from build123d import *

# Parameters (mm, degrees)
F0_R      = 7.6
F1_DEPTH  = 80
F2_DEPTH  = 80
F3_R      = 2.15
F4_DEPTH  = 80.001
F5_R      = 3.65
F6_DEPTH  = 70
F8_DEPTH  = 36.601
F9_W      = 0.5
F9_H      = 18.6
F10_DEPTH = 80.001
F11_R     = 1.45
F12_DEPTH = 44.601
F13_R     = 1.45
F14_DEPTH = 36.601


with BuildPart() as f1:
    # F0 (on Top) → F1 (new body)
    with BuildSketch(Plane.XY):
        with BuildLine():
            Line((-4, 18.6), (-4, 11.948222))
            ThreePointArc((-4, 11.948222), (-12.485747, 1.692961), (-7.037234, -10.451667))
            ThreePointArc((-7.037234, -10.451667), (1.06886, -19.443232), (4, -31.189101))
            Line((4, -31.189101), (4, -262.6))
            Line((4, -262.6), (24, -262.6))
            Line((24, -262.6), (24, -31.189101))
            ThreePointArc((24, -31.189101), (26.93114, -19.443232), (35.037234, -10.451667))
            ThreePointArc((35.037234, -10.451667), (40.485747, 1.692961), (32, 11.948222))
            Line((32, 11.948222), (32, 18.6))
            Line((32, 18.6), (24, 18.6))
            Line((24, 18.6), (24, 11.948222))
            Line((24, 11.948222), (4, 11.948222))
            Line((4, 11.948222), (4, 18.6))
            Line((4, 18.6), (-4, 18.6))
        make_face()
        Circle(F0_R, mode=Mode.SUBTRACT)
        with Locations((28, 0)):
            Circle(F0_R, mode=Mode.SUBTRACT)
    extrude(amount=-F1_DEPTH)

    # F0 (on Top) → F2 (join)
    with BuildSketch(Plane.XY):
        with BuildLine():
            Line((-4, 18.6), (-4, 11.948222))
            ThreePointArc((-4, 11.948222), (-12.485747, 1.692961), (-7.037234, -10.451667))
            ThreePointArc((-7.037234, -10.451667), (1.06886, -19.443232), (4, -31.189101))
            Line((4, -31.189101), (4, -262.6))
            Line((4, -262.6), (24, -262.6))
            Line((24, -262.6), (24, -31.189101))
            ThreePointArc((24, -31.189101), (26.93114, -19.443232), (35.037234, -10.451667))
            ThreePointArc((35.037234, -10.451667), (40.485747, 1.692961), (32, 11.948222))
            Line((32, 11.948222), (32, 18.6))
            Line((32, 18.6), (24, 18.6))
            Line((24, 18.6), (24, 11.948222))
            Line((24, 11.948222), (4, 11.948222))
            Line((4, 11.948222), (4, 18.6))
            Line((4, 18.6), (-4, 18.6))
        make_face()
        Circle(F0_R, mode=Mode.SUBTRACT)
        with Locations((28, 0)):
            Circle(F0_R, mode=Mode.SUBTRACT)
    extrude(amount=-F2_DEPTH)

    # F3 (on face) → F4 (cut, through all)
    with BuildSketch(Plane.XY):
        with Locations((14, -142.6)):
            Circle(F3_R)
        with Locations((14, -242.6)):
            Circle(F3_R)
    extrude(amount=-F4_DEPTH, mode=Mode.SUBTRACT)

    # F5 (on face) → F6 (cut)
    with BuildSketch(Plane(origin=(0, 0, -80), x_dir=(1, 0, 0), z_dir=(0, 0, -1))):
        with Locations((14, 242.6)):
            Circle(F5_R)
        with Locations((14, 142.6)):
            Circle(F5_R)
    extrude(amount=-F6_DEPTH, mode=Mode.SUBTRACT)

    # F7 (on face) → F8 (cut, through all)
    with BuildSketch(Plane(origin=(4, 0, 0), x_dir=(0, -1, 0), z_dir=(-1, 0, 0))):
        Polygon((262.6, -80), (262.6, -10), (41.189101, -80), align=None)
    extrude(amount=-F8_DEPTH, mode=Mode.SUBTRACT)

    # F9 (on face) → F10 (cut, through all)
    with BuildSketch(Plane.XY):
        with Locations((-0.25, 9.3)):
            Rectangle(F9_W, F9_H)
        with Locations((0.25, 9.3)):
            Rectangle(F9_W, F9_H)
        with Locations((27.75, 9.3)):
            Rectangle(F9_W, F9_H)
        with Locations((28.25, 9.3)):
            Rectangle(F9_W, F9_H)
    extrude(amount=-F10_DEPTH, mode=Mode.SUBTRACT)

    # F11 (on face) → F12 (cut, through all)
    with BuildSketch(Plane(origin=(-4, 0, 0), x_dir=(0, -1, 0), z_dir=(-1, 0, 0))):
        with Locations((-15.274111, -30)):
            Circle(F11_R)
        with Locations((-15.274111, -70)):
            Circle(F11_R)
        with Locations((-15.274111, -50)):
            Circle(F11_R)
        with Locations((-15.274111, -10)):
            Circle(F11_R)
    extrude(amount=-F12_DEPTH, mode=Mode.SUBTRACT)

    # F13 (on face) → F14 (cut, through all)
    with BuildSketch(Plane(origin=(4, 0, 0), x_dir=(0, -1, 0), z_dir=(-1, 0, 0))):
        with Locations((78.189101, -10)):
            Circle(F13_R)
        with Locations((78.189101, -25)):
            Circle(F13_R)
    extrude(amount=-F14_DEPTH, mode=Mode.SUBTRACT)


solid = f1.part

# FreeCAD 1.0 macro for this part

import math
import FreeCAD as App
import Part
import Sketcher
from FreeCAD import Vector


def add_polygon(sketch, points):
    """Adds a closed chain of lines whose ends are joined by coincident constraints."""
    first, n = sketch.GeometryCount, len(points)
    for a, b in zip(points, points[1:] + points[:1]):
        sketch.addGeometry(Part.LineSegment(App.Vector(*a, 0), App.Vector(*b, 0)), False)
    for i in range(n):
        sketch.addConstraint(Sketcher.Constraint("Coincident", first + i, 2, first + (i + 1) % n, 1))

doc = App.newDocument("Part")
body = doc.addObject("PartDesign::Body", "Body")

sketch1 = body.newObject("Sketcher::SketchObject", "Sketch")
sketch1.AttachmentSupport = (doc.getObject("XY_Plane"), [""])
sketch1.MapMode = "FlatFace"
sketch1.addGeometry([
    Part.LineSegment(Vector(-4, 19, 0), Vector(-4, 12, 0)),
    Part.ArcOfCircle(Part.Circle(Vector(0, 0, 0), Vector(0, 0, 1), 13), math.radians(109), math.radians(236)),
    Part.ArcOfCircle(Part.Circle(Vector(-21, -31, 0), Vector(0, 0, 1), 25), math.radians(0), math.radians(56)),
    Part.LineSegment(Vector(4, -31, 0), Vector(4, -263, 0)),
    Part.LineSegment(Vector(4, -263, 0), Vector(24, -263, 0)),
    Part.LineSegment(Vector(24, -263, 0), Vector(24, -31, 0)),
    Part.ArcOfCircle(Part.Circle(Vector(49, -31, 0), Vector(0, 0, 1), 25), math.radians(124), math.radians(180)),
    Part.ArcOfCircle(Part.Circle(Vector(28, 0, 0), Vector(0, 0, 1), 13), math.radians(-56), math.radians(71)),
    Part.LineSegment(Vector(32, 12, 0), Vector(32, 19, 0)),
    Part.LineSegment(Vector(32, 19, 0), Vector(24, 19, 0)),
    Part.LineSegment(Vector(24, 19, 0), Vector(24, 12, 0)),
    Part.LineSegment(Vector(24, 12, 0), Vector(4, 12, 0)),
    Part.LineSegment(Vector(4, 12, 0), Vector(4, 19, 0)),
    Part.LineSegment(Vector(4, 19, 0), Vector(-4, 19, 0)),
    Part.Circle(Vector(0, 0, 0), Vector(0, 0, 1), 8),
    Part.Circle(Vector(28, 0, 0), Vector(0, 0, 1), 8),
], False)
sketch1.addConstraint([
    Sketcher.Constraint("Coincident", 0, 2, 1, 1),
    Sketcher.Constraint("Tangent", 1, 2, 2, 2),
    Sketcher.Constraint("Tangent", 2, 1, 3, 1),
    Sketcher.Constraint("Coincident", 3, 2, 4, 1),
    Sketcher.Constraint("Coincident", 4, 2, 5, 1),
    Sketcher.Constraint("Tangent", 5, 2, 6, 2),
    Sketcher.Constraint("Tangent", 6, 1, 7, 1),
    Sketcher.Constraint("Coincident", 7, 2, 8, 1),
    Sketcher.Constraint("Coincident", 8, 2, 9, 1),
    Sketcher.Constraint("Coincident", 9, 2, 10, 1),
    Sketcher.Constraint("Coincident", 10, 2, 11, 1),
    Sketcher.Constraint("Coincident", 11, 2, 12, 1),
    Sketcher.Constraint("Coincident", 12, 2, 13, 1),
    Sketcher.Constraint("Coincident", 13, 2, 0, 1),
    Sketcher.Constraint("Vertical", 0),
    Sketcher.Constraint("Vertical", 3),
    Sketcher.Constraint("Horizontal", 4),
    Sketcher.Constraint("Vertical", 5),
    Sketcher.Constraint("Vertical", 8),
    Sketcher.Constraint("Horizontal", 9),
    Sketcher.Constraint("Vertical", 10),
    Sketcher.Constraint("Horizontal", 11),
    Sketcher.Constraint("Vertical", 12),
    Sketcher.Constraint("Horizontal", 13),
    Sketcher.Constraint("Coincident", 1, 3, -1, 1),
    Sketcher.Constraint("Coincident", 14, 3, -1, 1),
    Sketcher.Constraint("Coincident", 15, 3, 7, 3),
    Sketcher.Constraint("Equal", 2, 6),
    Sketcher.Constraint("Equal", 1, 7),
    Sketcher.Constraint("Equal", 14, 15),
    Sketcher.Constraint("Symmetric", 0, 2, 11, 2, -2),
    Sketcher.Constraint("PointOnObject", 7, 3, -1),
    Sketcher.Constraint("Horizontal", 2, 3, 6, 3),
    Sketcher.Constraint("Horizontal", 0, 2, 7, 2),
    Sketcher.Constraint("Horizontal", 9, 2, 12, 2),
    Sketcher.Constraint("Vertical", 5, 2, 9, 2),
    Sketcher.Constraint("Vertical", 3, 2, 11, 2),
    Sketcher.Constraint("Diameter", 14, 15.2),
    Sketcher.Constraint("Radius", 1, 12.600001),
    Sketcher.Constraint("DistanceX", 4, 1, 4, 2, 20.0),
    Sketcher.Constraint("DistanceX", 9, 2, 9, 1, 8.0),
    Sketcher.Constraint("DistanceX", 2, 3, 1, 3, 20.999998),
    Sketcher.Constraint("DistanceY", 3, 2, -1, 1, 262.6),
    Sketcher.Constraint("DistanceY", -1, 1, 8, 2, 18.6),
])
pad1 = body.newObject("PartDesign::Pad", "Pad")
pad1.Profile = sketch1
pad1.Length = 80
pad1.Reversed = True

sketch2 = body.newObject("Sketcher::SketchObject", "Sketch001")
sketch2.AttachmentSupport = (doc.getObject("XY_Plane"), [""])
sketch2.MapMode = "FlatFace"
sketch2.addGeometry([
    Part.LineSegment(Vector(-4, 19, 0), Vector(-4, 12, 0)),
    Part.ArcOfCircle(Part.Circle(Vector(0, 0, 0), Vector(0, 0, 1), 13), math.radians(109), math.radians(236)),
    Part.ArcOfCircle(Part.Circle(Vector(-21, -31, 0), Vector(0, 0, 1), 25), math.radians(0), math.radians(56)),
    Part.LineSegment(Vector(4, -31, 0), Vector(4, -263, 0)),
    Part.LineSegment(Vector(4, -263, 0), Vector(24, -263, 0)),
    Part.LineSegment(Vector(24, -263, 0), Vector(24, -31, 0)),
    Part.ArcOfCircle(Part.Circle(Vector(49, -31, 0), Vector(0, 0, 1), 25), math.radians(124), math.radians(180)),
    Part.ArcOfCircle(Part.Circle(Vector(28, 0, 0), Vector(0, 0, 1), 13), math.radians(-56), math.radians(71)),
    Part.LineSegment(Vector(32, 12, 0), Vector(32, 19, 0)),
    Part.LineSegment(Vector(32, 19, 0), Vector(24, 19, 0)),
    Part.LineSegment(Vector(24, 19, 0), Vector(24, 12, 0)),
    Part.LineSegment(Vector(24, 12, 0), Vector(4, 12, 0)),
    Part.LineSegment(Vector(4, 12, 0), Vector(4, 19, 0)),
    Part.LineSegment(Vector(4, 19, 0), Vector(-4, 19, 0)),
    Part.Circle(Vector(0, 0, 0), Vector(0, 0, 1), 8),
    Part.Circle(Vector(28, 0, 0), Vector(0, 0, 1), 8),
], False)
sketch2.addConstraint([
    Sketcher.Constraint("Coincident", 0, 2, 1, 1),
    Sketcher.Constraint("Tangent", 1, 2, 2, 2),
    Sketcher.Constraint("Tangent", 2, 1, 3, 1),
    Sketcher.Constraint("Coincident", 3, 2, 4, 1),
    Sketcher.Constraint("Coincident", 4, 2, 5, 1),
    Sketcher.Constraint("Tangent", 5, 2, 6, 2),
    Sketcher.Constraint("Tangent", 6, 1, 7, 1),
    Sketcher.Constraint("Coincident", 7, 2, 8, 1),
    Sketcher.Constraint("Coincident", 8, 2, 9, 1),
    Sketcher.Constraint("Coincident", 9, 2, 10, 1),
    Sketcher.Constraint("Coincident", 10, 2, 11, 1),
    Sketcher.Constraint("Coincident", 11, 2, 12, 1),
    Sketcher.Constraint("Coincident", 12, 2, 13, 1),
    Sketcher.Constraint("Coincident", 13, 2, 0, 1),
    Sketcher.Constraint("Vertical", 0),
    Sketcher.Constraint("Vertical", 3),
    Sketcher.Constraint("Horizontal", 4),
    Sketcher.Constraint("Vertical", 5),
    Sketcher.Constraint("Vertical", 8),
    Sketcher.Constraint("Horizontal", 9),
    Sketcher.Constraint("Vertical", 10),
    Sketcher.Constraint("Horizontal", 11),
    Sketcher.Constraint("Vertical", 12),
    Sketcher.Constraint("Horizontal", 13),
    Sketcher.Constraint("Coincident", 1, 3, -1, 1),
    Sketcher.Constraint("Coincident", 14, 3, -1, 1),
    Sketcher.Constraint("Coincident", 15, 3, 7, 3),
    Sketcher.Constraint("Equal", 2, 6),
    Sketcher.Constraint("Equal", 1, 7),
    Sketcher.Constraint("Equal", 14, 15),
    Sketcher.Constraint("Symmetric", 0, 2, 11, 2, -2),
    Sketcher.Constraint("PointOnObject", 7, 3, -1),
    Sketcher.Constraint("Horizontal", 2, 3, 6, 3),
    Sketcher.Constraint("Horizontal", 0, 2, 7, 2),
    Sketcher.Constraint("Horizontal", 9, 2, 12, 2),
    Sketcher.Constraint("Vertical", 5, 2, 9, 2),
    Sketcher.Constraint("Vertical", 3, 2, 11, 2),
    Sketcher.Constraint("Diameter", 14, 15.2),
    Sketcher.Constraint("Radius", 1, 12.600001),
    Sketcher.Constraint("DistanceX", 4, 1, 4, 2, 20.0),
    Sketcher.Constraint("DistanceX", 9, 2, 9, 1, 8.0),
    Sketcher.Constraint("DistanceX", 2, 3, 1, 3, 20.999998),
    Sketcher.Constraint("DistanceY", 3, 2, -1, 1, 262.6),
    Sketcher.Constraint("DistanceY", -1, 1, 8, 2, 18.6),
])
pad2 = body.newObject("PartDesign::Pad", "Pad001")
pad2.Profile = sketch2
pad2.Length = 80
pad2.Reversed = True

sketch3 = body.newObject("Sketcher::SketchObject", "Sketch002")
sketch3.AttachmentSupport = (doc.getObject("XY_Plane"), [""])
sketch3.MapMode = "FlatFace"
sketch3.addGeometry([
    Part.Circle(Vector(14, -142.6, 0), Vector(0, 0, 1), 2.1),
    Part.Circle(Vector(14, -242.6, 0), Vector(0, 0, 1), 2.1),
], False)
sketch3.addConstraint([
    Sketcher.Constraint("Equal", 0, 1),
    Sketcher.Constraint("Vertical", 0, 3, 1, 3),
    Sketcher.Constraint("Diameter", 0, 4.3),
    Sketcher.Constraint("DistanceX", -1, 1, 0, 3, 14.0),
    Sketcher.Constraint("DistanceY", 1, 3, 0, 3, 100.0),
    Sketcher.Constraint("DistanceY", 0, 3, -1, 1, 142.6),
])
pocket1 = body.newObject("PartDesign::Pocket", "Pocket")
pocket1.Profile = sketch3
pocket1.Type = "ThroughAll"

sketch4 = body.newObject("Sketcher::SketchObject", "Sketch003")
sketch4.AttachmentSupport = (doc.getObject("XY_Plane"), [""])
sketch4.MapMode = "FlatFace"
sketch4.AttachmentOffset = App.Placement(Vector(0, 0, -80), App.Rotation())
sketch4.addGeometry([
    Part.Circle(Vector(14, -242.6, 0), Vector(0, 0, 1), 3.6),
    Part.Circle(Vector(14, -142.6, 0), Vector(0, 0, 1), 3.6),
], False)
sketch4.addConstraint([
    Sketcher.Constraint("Equal", 0, 1),
    Sketcher.Constraint("Vertical", 0, 3, 1, 3),
    Sketcher.Constraint("Diameter", 0, 7.3),
    Sketcher.Constraint("DistanceX", -1, 1, 0, 3, 14.0),
    Sketcher.Constraint("DistanceY", 0, 3, 1, 3, 100.0),
    Sketcher.Constraint("DistanceY", 0, 3, -1, 1, 242.6),
])
pocket2 = body.newObject("PartDesign::Pocket", "Pocket001")
pocket2.Profile = sketch4
pocket2.Length = 70
pocket2.Reversed = True

sketch5 = body.newObject("Sketcher::SketchObject", "Sketch004")
sketch5.AttachmentSupport = (doc.getObject("YZ_Plane"), [""])
sketch5.MapMode = "FlatFace"
sketch5.AttachmentOffset = App.Placement(Vector(0, 0, 4), App.Rotation())
add_polygon(sketch5, [(-263, -80), (-263, -10), (-41, -80)])
sketch5.addConstraint([
    Sketcher.Constraint("Vertical", 0),
    Sketcher.Constraint("Horizontal", 2),
    Sketcher.Constraint("DistanceY", 0, 1, 0, 2, 70.0),
    Sketcher.Constraint("DistanceY", 0, 2, -1, 1, 10.0),
    Sketcher.Constraint("DistanceX", 0, 2, -1, 1, 262.6),
    Sketcher.Constraint("DistanceX", 2, 2, 2, 1, 221.410899),
])
pocket3 = body.newObject("PartDesign::Pocket", "Pocket002")
pocket3.Profile = sketch5
pocket3.Type = "ThroughAll"
pocket3.Reversed = True

sketch6 = body.newObject("Sketcher::SketchObject", "Sketch005")
sketch6.AttachmentSupport = (doc.getObject("XY_Plane"), [""])
sketch6.MapMode = "FlatFace"
add_polygon(sketch6, [(-0.5, 18.6), (-0.5, 0), (0.5, 0), (0.5, 18.6)])
add_polygon(sketch6, [(27.5, 18.6), (27.5, 0), (28.5, 0), (28.5, 18.6)])
sketch6.addConstraint([
    Sketcher.Constraint("Vertical", 0),
    Sketcher.Constraint("Horizontal", 1),
    Sketcher.Constraint("Vertical", 2),
    Sketcher.Constraint("Horizontal", 3),
    Sketcher.Constraint("Vertical", 4),
    Sketcher.Constraint("Horizontal", 5),
    Sketcher.Constraint("Vertical", 6),
    Sketcher.Constraint("Horizontal", 7),
    Sketcher.Constraint("Symmetric", 0, 2, 1, 2, -1, 1),
    Sketcher.Constraint("PointOnObject", 4, 2, -1),
    Sketcher.Constraint("Horizontal", 3, 2, 6, 2),
    Sketcher.Constraint("Equal", 3, 5),
    Sketcher.Constraint("DistanceX", 1, 1, 1, 2, 1.0),
    Sketcher.Constraint("DistanceY", 0, 2, 0, 1, 18.6),
    Sketcher.Constraint("DistanceX", 1, 2, 4, 2, 27.0),
])
pocket4 = body.newObject("PartDesign::Pocket", "Pocket003")
pocket4.Profile = sketch6
pocket4.Type = "ThroughAll"

sketch7 = body.newObject("Sketcher::SketchObject", "Sketch006")
sketch7.AttachmentSupport = (doc.getObject("YZ_Plane"), [""])
sketch7.MapMode = "FlatFace"
sketch7.AttachmentOffset = App.Placement(Vector(0, 0, -4), App.Rotation())
sketch7.addGeometry([
    Part.Circle(Vector(15.3, -30, 0), Vector(0, 0, 1), 1.4),
    Part.Circle(Vector(15.3, -70, 0), Vector(0, 0, 1), 1.4),
    Part.Circle(Vector(15.3, -50, 0), Vector(0, 0, 1), 1.4),
    Part.Circle(Vector(15.3, -10, 0), Vector(0, 0, 1), 1.4),
], False)
sketch7.addConstraint([
    Sketcher.Constraint("Equal", 0, 1),
    Sketcher.Constraint("Equal", 1, 2),
    Sketcher.Constraint("Equal", 2, 3),
    Sketcher.Constraint("Vertical", 0, 3, 1, 3),
    Sketcher.Constraint("Vertical", 1, 3, 2, 3),
    Sketcher.Constraint("Vertical", 2, 3, 3, 3),
    Sketcher.Constraint("Diameter", 0, 2.9),
    Sketcher.Constraint("DistanceY", 0, 3, -1, 1, 30.0),
    Sketcher.Constraint("DistanceY", 1, 3, -1, 1, 70.0),
    Sketcher.Constraint("DistanceY", 2, 3, -1, 1, 50.0),
    Sketcher.Constraint("DistanceY", 3, 3, -1, 1, 10.0),
    Sketcher.Constraint("DistanceX", -1, 1, 0, 3, 15.274111),
])
pocket5 = body.newObject("PartDesign::Pocket", "Pocket004")
pocket5.Profile = sketch7
pocket5.Type = "ThroughAll"
pocket5.Reversed = True

sketch8 = body.newObject("Sketcher::SketchObject", "Sketch007")
sketch8.AttachmentSupport = (doc.getObject("YZ_Plane"), [""])
sketch8.MapMode = "FlatFace"
sketch8.AttachmentOffset = App.Placement(Vector(0, 0, 4), App.Rotation())
sketch8.addGeometry([
    Part.Circle(Vector(-78.2, -10, 0), Vector(0, 0, 1), 1.4),
    Part.Circle(Vector(-78.2, -25, 0), Vector(0, 0, 1), 1.4),
], False)
sketch8.addConstraint([
    Sketcher.Constraint("Equal", 0, 1),
    Sketcher.Constraint("Vertical", 0, 3, 1, 3),
    Sketcher.Constraint("Diameter", 0, 2.9),
    Sketcher.Constraint("DistanceY", 0, 3, -1, 1, 10.0),
    Sketcher.Constraint("DistanceY", 1, 3, -1, 1, 25.0),
    Sketcher.Constraint("DistanceX", 0, 3, -1, 1, 78.189101),
])
pocket6 = body.newObject("PartDesign::Pocket", "Pocket005")
pocket6.Profile = sketch8
pocket6.Type = "ThroughAll"
pocket6.Reversed = True

doc.recompute()
